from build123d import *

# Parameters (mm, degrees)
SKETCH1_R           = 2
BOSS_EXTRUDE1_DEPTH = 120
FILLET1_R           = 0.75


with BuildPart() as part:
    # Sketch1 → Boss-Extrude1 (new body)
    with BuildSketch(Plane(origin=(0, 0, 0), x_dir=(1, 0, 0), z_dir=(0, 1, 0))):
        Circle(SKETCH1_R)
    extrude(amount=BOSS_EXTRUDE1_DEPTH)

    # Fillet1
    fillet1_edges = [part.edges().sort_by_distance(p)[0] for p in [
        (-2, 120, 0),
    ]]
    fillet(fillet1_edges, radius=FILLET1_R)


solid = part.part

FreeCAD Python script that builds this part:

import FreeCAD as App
import Part
import Sketcher


def edges_at(feature, points):
    """Names of the edges that pass closest to the given points."""
    edges = feature.Shape.Edges
    near = lambda p: min(range(len(edges)), key=lambda i: edges[i].distToShape(Part.Vertex(*p))[0])
    return sorted({f"Edge{near(p) + 1}" for p in points})

doc = App.newDocument("Part")
body = doc.addObject("PartDesign::Body", "Body")

sketch1 = doc.addObject("Sketcher::SketchObject", "Sketch")
body.addObject(sketch1)
sketch1.AttachmentSupport = (doc.XZ_Plane, [""])
sketch1.MapMode = "FlatFace"
sketch1.addGeometry(Part.Circle(App.Vector(0, 0, 0), App.Vector(0, 0, 1), 2), False)
sketch1.addConstraint(Sketcher.Constraint("Coincident", 0, 3, -1, 1))
sketch1.addConstraint(Sketcher.Constraint("Diameter", 0, 4.0))
pad1 = doc.addObject("PartDesign::Pad", "Pad")
body.addObject(pad1)
pad1.Profile = sketch1
pad1.Length = 120
pad1.Reversed = True
doc.recompute()

fillet = doc.addObject("PartDesign::Fillet", "Fillet")
body.addObject(fillet)
fillet.Base = (pad1, edges_at(pad1, [(-2, 120, 0)]))
fillet.Radius = 0.75

doc.recompute()
